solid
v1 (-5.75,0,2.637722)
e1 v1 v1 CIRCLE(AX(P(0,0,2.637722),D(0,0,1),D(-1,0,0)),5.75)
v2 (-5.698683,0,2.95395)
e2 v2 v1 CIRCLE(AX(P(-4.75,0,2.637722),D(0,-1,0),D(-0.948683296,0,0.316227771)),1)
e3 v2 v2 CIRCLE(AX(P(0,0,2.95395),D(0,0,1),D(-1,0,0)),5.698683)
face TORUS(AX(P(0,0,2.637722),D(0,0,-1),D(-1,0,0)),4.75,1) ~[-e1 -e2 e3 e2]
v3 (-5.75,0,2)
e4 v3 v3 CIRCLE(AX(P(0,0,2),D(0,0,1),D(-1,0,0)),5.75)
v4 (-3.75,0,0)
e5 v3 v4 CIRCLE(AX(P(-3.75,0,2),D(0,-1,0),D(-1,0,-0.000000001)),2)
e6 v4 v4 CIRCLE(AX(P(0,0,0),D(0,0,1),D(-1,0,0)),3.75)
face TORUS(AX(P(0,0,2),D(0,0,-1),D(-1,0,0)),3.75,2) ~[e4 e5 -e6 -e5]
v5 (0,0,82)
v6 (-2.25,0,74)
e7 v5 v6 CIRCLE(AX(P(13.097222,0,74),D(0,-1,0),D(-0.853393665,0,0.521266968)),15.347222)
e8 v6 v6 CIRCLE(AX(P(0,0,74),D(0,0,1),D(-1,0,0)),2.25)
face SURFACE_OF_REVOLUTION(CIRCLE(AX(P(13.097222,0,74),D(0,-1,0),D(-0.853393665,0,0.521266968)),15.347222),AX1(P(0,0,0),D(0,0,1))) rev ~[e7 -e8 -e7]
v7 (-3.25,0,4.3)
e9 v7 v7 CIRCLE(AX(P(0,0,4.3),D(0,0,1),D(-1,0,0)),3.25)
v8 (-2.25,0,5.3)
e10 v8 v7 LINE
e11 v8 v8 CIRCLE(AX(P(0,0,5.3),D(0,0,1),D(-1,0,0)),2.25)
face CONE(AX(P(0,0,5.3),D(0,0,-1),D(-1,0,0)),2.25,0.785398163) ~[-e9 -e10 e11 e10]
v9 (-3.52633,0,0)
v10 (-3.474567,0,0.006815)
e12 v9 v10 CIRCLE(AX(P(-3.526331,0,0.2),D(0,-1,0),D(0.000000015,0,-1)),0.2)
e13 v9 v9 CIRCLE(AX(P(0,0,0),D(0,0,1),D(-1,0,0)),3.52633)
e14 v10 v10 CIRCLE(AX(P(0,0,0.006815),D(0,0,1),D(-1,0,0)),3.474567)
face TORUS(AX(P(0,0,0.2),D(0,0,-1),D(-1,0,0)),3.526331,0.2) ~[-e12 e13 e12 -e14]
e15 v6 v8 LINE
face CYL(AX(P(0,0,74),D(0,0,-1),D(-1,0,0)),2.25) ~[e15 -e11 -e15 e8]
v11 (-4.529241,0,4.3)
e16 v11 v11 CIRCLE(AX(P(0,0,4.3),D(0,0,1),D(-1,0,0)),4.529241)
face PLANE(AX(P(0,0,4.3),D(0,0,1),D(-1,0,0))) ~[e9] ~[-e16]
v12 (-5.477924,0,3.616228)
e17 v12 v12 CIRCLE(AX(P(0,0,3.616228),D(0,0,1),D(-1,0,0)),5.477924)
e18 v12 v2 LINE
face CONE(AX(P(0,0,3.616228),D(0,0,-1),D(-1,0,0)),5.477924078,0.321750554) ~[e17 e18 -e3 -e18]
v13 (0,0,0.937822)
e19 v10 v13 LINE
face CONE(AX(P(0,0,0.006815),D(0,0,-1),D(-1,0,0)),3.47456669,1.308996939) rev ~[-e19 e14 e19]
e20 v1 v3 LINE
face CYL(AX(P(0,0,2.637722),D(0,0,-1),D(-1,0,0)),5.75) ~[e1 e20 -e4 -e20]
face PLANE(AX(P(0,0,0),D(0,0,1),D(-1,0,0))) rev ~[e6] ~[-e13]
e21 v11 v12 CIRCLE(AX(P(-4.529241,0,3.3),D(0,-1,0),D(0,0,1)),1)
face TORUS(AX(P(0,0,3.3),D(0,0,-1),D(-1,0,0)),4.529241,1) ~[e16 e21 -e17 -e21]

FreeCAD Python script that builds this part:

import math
import FreeCAD as App
import Part
import Sketcher
from FreeCAD import Vector
Q = App.Units.Quantity

doc = App.newDocument("Part")
body = doc.addObject("PartDesign::Body", "Body")

# Sketch on YZ plane
sketch1 = doc.addObject("Sketcher::SketchObject", "Sketch")
body.addObject(sketch1)
sketch1.AttachmentSupport = (doc.YZ_Plane, [""])
sketch1.MapMode = "FlatFace"
sketch1.addGeometry(Part.LineSegment(Vector(0, 0.94, 0), Vector(3.47, 0.01, 0)), False)
sketch1.addGeometry(Part.ArcOfCircle(Part.Circle(Vector(3.53, 0.2, 0), Vector(0, 0, 1), 0.2), math.radians(-105), math.radians(-90)), False)
sketch1.addGeometry(Part.LineSegment(Vector(3.53, 0, 0), Vector(3.75, 0, 0)), False)
sketch1.addGeometry(Part.ArcOfCircle(Part.Circle(Vector(3.75, 2, 0), Vector(0, 0, 1), 2), math.radians(-90), math.radians(0)), False)
sketch1.addGeometry(Part.LineSegment(Vector(5.75, 2, 0), Vector(5.75, 2.64, 0)), False)
sketch1.addGeometry(Part.ArcOfCircle(Part.Circle(Vector(4.75, 2.64, 0), Vector(0, 0, 1), 1), math.radians(0), math.radians(18.43)), False)
sketch1.addGeometry(Part.LineSegment(Vector(5.7, 2.95, 0), Vector(5.48, 3.62, 0)), False)
sketch1.addGeometry(Part.ArcOfCircle(Part.Circle(Vector(4.53, 3.3, 0), Vector(0, 0, 1), 1), math.radians(18), math.radians(90)), False)
sketch1.addGeometry(Part.LineSegment(Vector(4.53, 4.3, 0), Vector(3.25, 4.3, 0)), False)
sketch1.addGeometry(Part.LineSegment(Vector(3.25, 4.3, 0), Vector(2.25, 5.3, 0)), False)
sketch1.addGeometry(Part.LineSegment(Vector(2.25, 5.3, 0), Vector(2.25, 74, 0)), False)
sketch1.addGeometry(Part.ArcOfCircle(Part.Circle(Vector(-13.1, 74, 0), Vector(0, 0, 1), 15.35), math.radians(0), math.radians(31)), False)
sketch1.addGeometry(Part.LineSegment(Vector(0, 82, 0), Vector(0, 0.94, 0)), False)
sketch1.addConstraint(Sketcher.Constraint("Tangent", 0, 2, 1, 1))
sketch1.addConstraint(Sketcher.Constraint("Tangent", 1, 2, 2, 1))
sketch1.addConstraint(Sketcher.Constraint("Tangent", 2, 2, 3, 1))
sketch1.addConstraint(Sketcher.Constraint("Tangent", 3, 2, 4, 1))
sketch1.addConstraint(Sketcher.Constraint("Tangent", 4, 2, 5, 1))
sketch1.addConstraint(Sketcher.Constraint("Tangent", 5, 2, 6, 1))
sketch1.addConstraint(Sketcher.Constraint("Tangent", 6, 2, 7, 1))
sketch1.addConstraint(Sketcher.Constraint("Tangent", 7, 2, 8, 1))
sketch1.addConstraint(Sketcher.Constraint("Coincident", 8, 2, 9, 1))
sketch1.addConstraint(Sketcher.Constraint("Coincident", 9, 2, 10, 1))
sketch1.addConstraint(Sketcher.Constraint("Tangent", 10, 2, 11, 1))
sketch1.addConstraint(Sketcher.Constraint("Coincident", 11, 2, 12, 1))
sketch1.addConstraint(Sketcher.Constraint("Coincident", 12, 2, 0, 1))
sketch1.addConstraint(Sketcher.Constraint("Horizontal", 2))
sketch1.addConstraint(Sketcher.Constraint("Vertical", 4))
sketch1.addConstraint(Sketcher.Constraint("Horizontal", 8))
sketch1.addConstraint(Sketcher.Constraint("Vertical", 10))
sketch1.addConstraint(Sketcher.Constraint("Vertical", 12))
sketch1.addConstraint(Sketcher.Constraint("Equal", 5, 7))
sketch1.addConstraint(Sketcher.Constraint("PointOnObject", 1, 2, -1))
sketch1.addConstraint(Sketcher.Constraint("PointOnObject", 11, 2, -2))
sketch1.addConstraint(Sketcher.Constraint("Radius", 3, 2.0))
sketch1.addConstraint(Sketcher.Constraint("Radius", 5, 1.0))
sketch1.addConstraint(Sketcher.Constraint("Radius", 1, 0.2))
sketch1.addConstraint(Sketcher.Constraint("Angle", 0, Q("-15 deg")))
sketch1.addConstraint(Sketcher.Constraint("Angle", 9, Q("135 deg")))
sketch1.addConstraint(Sketcher.Constraint("DistanceY", 10, 1, 10, 2, 68.7))
sketch1.addConstraint(Sketcher.Constraint("DistanceY", -1, 1, 11, 3, 74.0))
sketch1.addConstraint(Sketcher.Constraint("DistanceY", -1, 1, 11, 2, 82.0))
sketch1.addConstraint(Sketcher.Constraint("DistanceX", 9, 2, 8, 2, 1.0))
sketch1.addConstraint(Sketcher.Constraint("DistanceX", 8, 2, 5, 3, 1.5))
sketch1.addConstraint(Sketcher.Constraint("DistanceX", -1, 1, 3, 3, 3.75))
sketch1.addConstraint(Sketcher.Constraint("Distance", 6, 0.698102))
sketch1.addConstraint(Sketcher.Constraint("DistanceX", 2, 1, 2, 2, 0.22367))
sketch1.addConstraint(Sketcher.Constraint("DistanceX", 8, 2, 8, 1, 1.279241))
revolution = doc.addObject("PartDesign::Revolution", "Revolution")
body.addObject(revolution)
revolution.Profile = sketch1
revolution.ReferenceAxis = (sketch1, ["V_Axis"])
revolution.Angle = 360

doc.recompute()
